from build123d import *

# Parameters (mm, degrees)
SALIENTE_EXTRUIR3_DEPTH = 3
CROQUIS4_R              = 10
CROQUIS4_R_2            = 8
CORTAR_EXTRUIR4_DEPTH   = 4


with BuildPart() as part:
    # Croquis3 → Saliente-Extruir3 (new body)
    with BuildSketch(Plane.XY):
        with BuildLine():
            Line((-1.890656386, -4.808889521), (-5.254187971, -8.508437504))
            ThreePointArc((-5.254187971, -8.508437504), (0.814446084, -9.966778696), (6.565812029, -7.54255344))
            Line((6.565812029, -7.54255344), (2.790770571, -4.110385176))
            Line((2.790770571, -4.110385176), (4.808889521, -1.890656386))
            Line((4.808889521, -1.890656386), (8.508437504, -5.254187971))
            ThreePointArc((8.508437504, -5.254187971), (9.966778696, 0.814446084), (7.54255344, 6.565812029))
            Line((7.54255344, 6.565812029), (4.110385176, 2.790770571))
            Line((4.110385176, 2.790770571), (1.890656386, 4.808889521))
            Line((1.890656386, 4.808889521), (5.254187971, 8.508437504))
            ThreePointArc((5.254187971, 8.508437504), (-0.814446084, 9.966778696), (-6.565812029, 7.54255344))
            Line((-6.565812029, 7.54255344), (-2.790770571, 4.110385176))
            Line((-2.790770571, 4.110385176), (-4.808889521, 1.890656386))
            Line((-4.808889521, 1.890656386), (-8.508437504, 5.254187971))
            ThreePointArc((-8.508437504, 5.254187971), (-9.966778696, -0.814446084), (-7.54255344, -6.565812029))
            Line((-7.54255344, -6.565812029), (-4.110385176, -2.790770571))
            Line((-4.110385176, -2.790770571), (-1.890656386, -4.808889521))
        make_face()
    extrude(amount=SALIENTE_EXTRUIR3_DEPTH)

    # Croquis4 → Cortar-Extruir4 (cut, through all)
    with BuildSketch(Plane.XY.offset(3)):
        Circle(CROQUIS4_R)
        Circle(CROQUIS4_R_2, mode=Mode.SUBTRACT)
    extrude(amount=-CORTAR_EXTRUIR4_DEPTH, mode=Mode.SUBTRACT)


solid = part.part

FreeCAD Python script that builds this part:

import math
import FreeCAD as App
import Part
import Sketcher
from FreeCAD import Vector
Q = App.Units.Quantity

doc = App.newDocument("Part")
body = doc.addObject("PartDesign::Body", "Body")

# Sketch on XY plane
sketch1 = doc.addObject("Sketcher::SketchObject", "Sketch")
body.addObject(sketch1)
sketch1.AttachmentSupport = (doc.XY_Plane, [""])
sketch1.MapMode = "FlatFace"
sketch1.addGeometry([
    Part.LineSegment(Vector(-1.890656, -4.80889, 0), Vector(-5.254188, -8.508438, 0)),  # 0
    Part.ArcOfCircle(Part.Circle(Vector(0, 0, 0), Vector(0, 0, 1), 10), math.radians(-121.696441), math.radians(-48.960346)),  # 1
    Part.LineSegment(Vector(6.565812, -7.542553, 0), Vector(2.790771, -4.110385, 0)),  # 2
    Part.LineSegment(Vector(2.790771, -4.110385, 0), Vector(4.80889, -1.890656, 0)),  # 3
    Part.LineSegment(Vector(4.80889, -1.890656, 0), Vector(8.508438, -5.254188, 0)),  # 4
    Part.ArcOfCircle(Part.Circle(Vector(0, 0, 0), Vector(0, 0, 1), 10), math.radians(-31.696441), math.radians(41.039654)),  # 5
    Part.LineSegment(Vector(7.542553, 6.565812, 0), Vector(4.110385, 2.790771, 0)),  # 6
    Part.LineSegment(Vector(4.110385, 2.790771, 0), Vector(1.890656, 4.80889, 0)),  # 7
    Part.LineSegment(Vector(1.890656, 4.80889, 0), Vector(5.254188, 8.508438, 0)),  # 8
    Part.ArcOfCircle(Part.Circle(Vector(0, 0, 0), Vector(0, 0, 1), 10), math.radians(58.303559), math.radians(131.039654)),  # 9
    Part.LineSegment(Vector(-6.565812, 7.542553, 0), Vector(-2.790771, 4.110385, 0)),  # 10
    Part.LineSegment(Vector(-2.790771, 4.110385, 0), Vector(-4.80889, 1.890656, 0)),  # 11
    Part.LineSegment(Vector(-4.80889, 1.890656, 0), Vector(-8.508438, 5.254188, 0)),  # 12
    Part.ArcOfCircle(Part.Circle(Vector(0, 0, 0), Vector(0, 0, 1), 10), math.radians(148.303559), math.radians(221.039654)),  # 13
    Part.LineSegment(Vector(-7.542553, -6.565812, 0), Vector(-4.110385, -2.790771, 0)),  # 14
    Part.LineSegment(Vector(-4.110385, -2.790771, 0), Vector(-1.890656, -4.80889, 0)),  # 15
], False)
sketch1.addConstraint([
    Sketcher.Constraint("Coincident", 0, 2, 1, 1),
    Sketcher.Constraint("Coincident", 1, 2, 2, 1),
    Sketcher.Constraint("Coincident", 2, 2, 3, 1),
    Sketcher.Constraint("Coincident", 3, 2, 4, 1),
    Sketcher.Constraint("Coincident", 4, 2, 5, 1),
    Sketcher.Constraint("Coincident", 5, 2, 6, 1),
    Sketcher.Constraint("Coincident", 6, 2, 7, 1),
    Sketcher.Constraint("Coincident", 7, 2, 8, 1),
    Sketcher.Constraint("Coincident", 8, 2, 9, 1),
    Sketcher.Constraint("Coincident", 9, 2, 10, 1),
    Sketcher.Constraint("Coincident", 10, 2, 11, 1),
    Sketcher.Constraint("Coincident", 11, 2, 12, 1),
    Sketcher.Constraint("Coincident", 12, 2, 13, 1),
    Sketcher.Constraint("Coincident", 13, 2, 14, 1),
    Sketcher.Constraint("Coincident", 14, 2, 15, 1),
    Sketcher.Constraint("Coincident", 15, 2, 0, 1),
    Sketcher.Constraint("Coincident", 1, 3, -1, 1),
    Sketcher.Constraint("Coincident", 5, 3, -1, 1),
    Sketcher.Constraint("Coincident", 9, 3, -1, 1),
    Sketcher.Constraint("Coincident", 13, 3, -1, 1),
    Sketcher.Constraint("Equal", 1, 5),
    Sketcher.Constraint("Equal", 5, 9),
    Sketcher.Constraint("Equal", 9, 13),
    Sketcher.Constraint("Symmetric", 2, 2, 10, 2, -1, 1),
    Sketcher.Constraint("Symmetric", 3, 2, 11, 2, -1, 1),
    Sketcher.Constraint("Symmetric", 6, 2, 14, 2, -1, 1),
    Sketcher.Constraint("Symmetric", 7, 2, 15, 2, -1, 1),
    Sketcher.Constraint("Perpendicular", 0, 2),
    Sketcher.Constraint("Perpendicular", 2, 3),
    Sketcher.Constraint("Perpendicular", 3, 4),
    Sketcher.Constraint("Perpendicular", 4, 6),
    Sketcher.Constraint("Perpendicular", 6, 7),
    Sketcher.Constraint("Perpendicular", 7, 8),
    Sketcher.Constraint("Perpendicular", 8, 10),
    Sketcher.Constraint("Perpendicular", 11, 12),
    Sketcher.Constraint("Perpendicular", 12, 14),
    Sketcher.Constraint("Equal", 0, 4),
    Sketcher.Constraint("Equal", 2, 6),
    Sketcher.Constraint("Equal", 3, 7),
    Sketcher.Constraint("Radius", 1, Q("10 mm")),
    Sketcher.Constraint("Distance", 0, Q("5 mm")),
    Sketcher.Constraint("Distance", 3, Q("3 mm")),
    Sketcher.Constraint("DistanceX", 0, 2, 1, 2, Q("11.82 mm")),
    Sketcher.Constraint("Distance", 2, Q("5.102031 mm")),
])
pad1 = doc.addObject("PartDesign::Pad", "Pad")
body.addObject(pad1)
pad1.Profile = sketch1
pad1.Length = 3

# Sketch on XY plane
sketch2 = doc.addObject("Sketcher::SketchObject", "Sketch001")
body.addObject(sketch2)
sketch2.AttachmentSupport = (doc.XY_Plane, [""])
sketch2.MapMode = "FlatFace"
sketch2.AttachmentOffset = App.Placement(Vector(0, 0, 3), App.Rotation())
sketch2.addGeometry([
    Part.Circle(Vector(0, 0, 0), Vector(0, 0, 1), 10),
    Part.Circle(Vector(0, 0, 0), Vector(0, 0, 1), 8),
], False)
sketch2.addConstraint([
    Sketcher.Constraint("Coincident", 0, 3, -1, 1),
    Sketcher.Constraint("Coincident", 1, 3, -1, 1),
    Sketcher.Constraint("Diameter", 0, Q("20 mm")),
    Sketcher.Constraint("Diameter", 1, Q("16 mm")),
])
pocket1 = doc.addObject("PartDesign::Pocket", "Pocket")
body.addObject(pocket1)
pocket1.Profile = sketch2
pocket1.Type = "ThroughAll"

doc.recompute()
